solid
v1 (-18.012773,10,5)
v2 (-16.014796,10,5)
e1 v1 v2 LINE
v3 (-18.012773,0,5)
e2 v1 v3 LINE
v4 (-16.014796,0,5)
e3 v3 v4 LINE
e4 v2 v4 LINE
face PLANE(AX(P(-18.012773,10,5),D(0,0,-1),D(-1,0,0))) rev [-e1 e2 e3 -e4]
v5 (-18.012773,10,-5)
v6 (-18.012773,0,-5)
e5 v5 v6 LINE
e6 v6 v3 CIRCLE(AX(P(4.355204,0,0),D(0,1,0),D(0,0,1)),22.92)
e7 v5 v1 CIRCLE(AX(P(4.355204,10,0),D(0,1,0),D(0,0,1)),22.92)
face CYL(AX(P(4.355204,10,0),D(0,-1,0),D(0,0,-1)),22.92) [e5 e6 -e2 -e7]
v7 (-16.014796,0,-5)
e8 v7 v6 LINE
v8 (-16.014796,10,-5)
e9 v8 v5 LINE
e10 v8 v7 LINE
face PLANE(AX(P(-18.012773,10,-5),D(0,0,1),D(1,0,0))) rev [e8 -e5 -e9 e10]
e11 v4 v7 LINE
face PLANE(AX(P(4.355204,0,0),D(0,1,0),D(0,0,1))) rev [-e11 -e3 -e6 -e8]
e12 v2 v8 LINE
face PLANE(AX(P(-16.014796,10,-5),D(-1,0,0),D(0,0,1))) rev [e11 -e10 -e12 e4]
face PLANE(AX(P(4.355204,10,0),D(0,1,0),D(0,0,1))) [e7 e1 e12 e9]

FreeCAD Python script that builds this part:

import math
import FreeCAD as App
import Part
import Sketcher

V = App.Vector

doc = App.newDocument("Part")
body = doc.addObject("PartDesign::Body", "Body")

# Sketch on XZ plane
sketch1 = body.newObject("Sketcher::SketchObject", "Sketch")
sketch1.AttachmentSupport = (doc.getObject("XZ_Plane"), [""])
sketch1.MapMode = "FlatFace"
sketch1.addGeometry([
    Part.LineSegment(V(-16.014796, -5, 0), V(-18.012773, -5, 0)),
    Part.ArcOfCircle(Part.Circle(V(4.355204, 0, 0), V(0, 0, 1), 22.92), math.radians(167.399598), math.radians(192.600402)),
    Part.LineSegment(V(-18.012773, 5, 0), V(-16.014796, 5, 0)),
    Part.LineSegment(V(-16.014796, 5, 0), V(-16.014796, -5, 0)),
], False)
sketch1.addConstraint([
    Sketcher.Constraint("Coincident", 0, 2, 1, 2),
    Sketcher.Constraint("Coincident", 1, 1, 2, 1),
    Sketcher.Constraint("Coincident", 2, 2, 3, 1),
    Sketcher.Constraint("Coincident", 3, 2, 0, 1),
    Sketcher.Constraint("Horizontal", 0),
    Sketcher.Constraint("Horizontal", 2),
    Sketcher.Constraint("Vertical", 3),
    Sketcher.Constraint("Symmetric", 0, 2, 1, 1, -1),
    Sketcher.Constraint("DistanceY", 3, 2, 3, 1, 10.0),
    Sketcher.Constraint("Radius", 1, 22.92),
    Sketcher.Constraint("DistanceX", 2, 2, 1, 3, 20.37),
    Sketcher.Constraint("DistanceX", -1, 1, 1, 3, 4.355204),
])
pad1 = body.newObject("PartDesign::Pad", "Pad")
pad1.Profile = sketch1
pad1.Length = 10
pad1.Reversed = True

doc.recompute()
